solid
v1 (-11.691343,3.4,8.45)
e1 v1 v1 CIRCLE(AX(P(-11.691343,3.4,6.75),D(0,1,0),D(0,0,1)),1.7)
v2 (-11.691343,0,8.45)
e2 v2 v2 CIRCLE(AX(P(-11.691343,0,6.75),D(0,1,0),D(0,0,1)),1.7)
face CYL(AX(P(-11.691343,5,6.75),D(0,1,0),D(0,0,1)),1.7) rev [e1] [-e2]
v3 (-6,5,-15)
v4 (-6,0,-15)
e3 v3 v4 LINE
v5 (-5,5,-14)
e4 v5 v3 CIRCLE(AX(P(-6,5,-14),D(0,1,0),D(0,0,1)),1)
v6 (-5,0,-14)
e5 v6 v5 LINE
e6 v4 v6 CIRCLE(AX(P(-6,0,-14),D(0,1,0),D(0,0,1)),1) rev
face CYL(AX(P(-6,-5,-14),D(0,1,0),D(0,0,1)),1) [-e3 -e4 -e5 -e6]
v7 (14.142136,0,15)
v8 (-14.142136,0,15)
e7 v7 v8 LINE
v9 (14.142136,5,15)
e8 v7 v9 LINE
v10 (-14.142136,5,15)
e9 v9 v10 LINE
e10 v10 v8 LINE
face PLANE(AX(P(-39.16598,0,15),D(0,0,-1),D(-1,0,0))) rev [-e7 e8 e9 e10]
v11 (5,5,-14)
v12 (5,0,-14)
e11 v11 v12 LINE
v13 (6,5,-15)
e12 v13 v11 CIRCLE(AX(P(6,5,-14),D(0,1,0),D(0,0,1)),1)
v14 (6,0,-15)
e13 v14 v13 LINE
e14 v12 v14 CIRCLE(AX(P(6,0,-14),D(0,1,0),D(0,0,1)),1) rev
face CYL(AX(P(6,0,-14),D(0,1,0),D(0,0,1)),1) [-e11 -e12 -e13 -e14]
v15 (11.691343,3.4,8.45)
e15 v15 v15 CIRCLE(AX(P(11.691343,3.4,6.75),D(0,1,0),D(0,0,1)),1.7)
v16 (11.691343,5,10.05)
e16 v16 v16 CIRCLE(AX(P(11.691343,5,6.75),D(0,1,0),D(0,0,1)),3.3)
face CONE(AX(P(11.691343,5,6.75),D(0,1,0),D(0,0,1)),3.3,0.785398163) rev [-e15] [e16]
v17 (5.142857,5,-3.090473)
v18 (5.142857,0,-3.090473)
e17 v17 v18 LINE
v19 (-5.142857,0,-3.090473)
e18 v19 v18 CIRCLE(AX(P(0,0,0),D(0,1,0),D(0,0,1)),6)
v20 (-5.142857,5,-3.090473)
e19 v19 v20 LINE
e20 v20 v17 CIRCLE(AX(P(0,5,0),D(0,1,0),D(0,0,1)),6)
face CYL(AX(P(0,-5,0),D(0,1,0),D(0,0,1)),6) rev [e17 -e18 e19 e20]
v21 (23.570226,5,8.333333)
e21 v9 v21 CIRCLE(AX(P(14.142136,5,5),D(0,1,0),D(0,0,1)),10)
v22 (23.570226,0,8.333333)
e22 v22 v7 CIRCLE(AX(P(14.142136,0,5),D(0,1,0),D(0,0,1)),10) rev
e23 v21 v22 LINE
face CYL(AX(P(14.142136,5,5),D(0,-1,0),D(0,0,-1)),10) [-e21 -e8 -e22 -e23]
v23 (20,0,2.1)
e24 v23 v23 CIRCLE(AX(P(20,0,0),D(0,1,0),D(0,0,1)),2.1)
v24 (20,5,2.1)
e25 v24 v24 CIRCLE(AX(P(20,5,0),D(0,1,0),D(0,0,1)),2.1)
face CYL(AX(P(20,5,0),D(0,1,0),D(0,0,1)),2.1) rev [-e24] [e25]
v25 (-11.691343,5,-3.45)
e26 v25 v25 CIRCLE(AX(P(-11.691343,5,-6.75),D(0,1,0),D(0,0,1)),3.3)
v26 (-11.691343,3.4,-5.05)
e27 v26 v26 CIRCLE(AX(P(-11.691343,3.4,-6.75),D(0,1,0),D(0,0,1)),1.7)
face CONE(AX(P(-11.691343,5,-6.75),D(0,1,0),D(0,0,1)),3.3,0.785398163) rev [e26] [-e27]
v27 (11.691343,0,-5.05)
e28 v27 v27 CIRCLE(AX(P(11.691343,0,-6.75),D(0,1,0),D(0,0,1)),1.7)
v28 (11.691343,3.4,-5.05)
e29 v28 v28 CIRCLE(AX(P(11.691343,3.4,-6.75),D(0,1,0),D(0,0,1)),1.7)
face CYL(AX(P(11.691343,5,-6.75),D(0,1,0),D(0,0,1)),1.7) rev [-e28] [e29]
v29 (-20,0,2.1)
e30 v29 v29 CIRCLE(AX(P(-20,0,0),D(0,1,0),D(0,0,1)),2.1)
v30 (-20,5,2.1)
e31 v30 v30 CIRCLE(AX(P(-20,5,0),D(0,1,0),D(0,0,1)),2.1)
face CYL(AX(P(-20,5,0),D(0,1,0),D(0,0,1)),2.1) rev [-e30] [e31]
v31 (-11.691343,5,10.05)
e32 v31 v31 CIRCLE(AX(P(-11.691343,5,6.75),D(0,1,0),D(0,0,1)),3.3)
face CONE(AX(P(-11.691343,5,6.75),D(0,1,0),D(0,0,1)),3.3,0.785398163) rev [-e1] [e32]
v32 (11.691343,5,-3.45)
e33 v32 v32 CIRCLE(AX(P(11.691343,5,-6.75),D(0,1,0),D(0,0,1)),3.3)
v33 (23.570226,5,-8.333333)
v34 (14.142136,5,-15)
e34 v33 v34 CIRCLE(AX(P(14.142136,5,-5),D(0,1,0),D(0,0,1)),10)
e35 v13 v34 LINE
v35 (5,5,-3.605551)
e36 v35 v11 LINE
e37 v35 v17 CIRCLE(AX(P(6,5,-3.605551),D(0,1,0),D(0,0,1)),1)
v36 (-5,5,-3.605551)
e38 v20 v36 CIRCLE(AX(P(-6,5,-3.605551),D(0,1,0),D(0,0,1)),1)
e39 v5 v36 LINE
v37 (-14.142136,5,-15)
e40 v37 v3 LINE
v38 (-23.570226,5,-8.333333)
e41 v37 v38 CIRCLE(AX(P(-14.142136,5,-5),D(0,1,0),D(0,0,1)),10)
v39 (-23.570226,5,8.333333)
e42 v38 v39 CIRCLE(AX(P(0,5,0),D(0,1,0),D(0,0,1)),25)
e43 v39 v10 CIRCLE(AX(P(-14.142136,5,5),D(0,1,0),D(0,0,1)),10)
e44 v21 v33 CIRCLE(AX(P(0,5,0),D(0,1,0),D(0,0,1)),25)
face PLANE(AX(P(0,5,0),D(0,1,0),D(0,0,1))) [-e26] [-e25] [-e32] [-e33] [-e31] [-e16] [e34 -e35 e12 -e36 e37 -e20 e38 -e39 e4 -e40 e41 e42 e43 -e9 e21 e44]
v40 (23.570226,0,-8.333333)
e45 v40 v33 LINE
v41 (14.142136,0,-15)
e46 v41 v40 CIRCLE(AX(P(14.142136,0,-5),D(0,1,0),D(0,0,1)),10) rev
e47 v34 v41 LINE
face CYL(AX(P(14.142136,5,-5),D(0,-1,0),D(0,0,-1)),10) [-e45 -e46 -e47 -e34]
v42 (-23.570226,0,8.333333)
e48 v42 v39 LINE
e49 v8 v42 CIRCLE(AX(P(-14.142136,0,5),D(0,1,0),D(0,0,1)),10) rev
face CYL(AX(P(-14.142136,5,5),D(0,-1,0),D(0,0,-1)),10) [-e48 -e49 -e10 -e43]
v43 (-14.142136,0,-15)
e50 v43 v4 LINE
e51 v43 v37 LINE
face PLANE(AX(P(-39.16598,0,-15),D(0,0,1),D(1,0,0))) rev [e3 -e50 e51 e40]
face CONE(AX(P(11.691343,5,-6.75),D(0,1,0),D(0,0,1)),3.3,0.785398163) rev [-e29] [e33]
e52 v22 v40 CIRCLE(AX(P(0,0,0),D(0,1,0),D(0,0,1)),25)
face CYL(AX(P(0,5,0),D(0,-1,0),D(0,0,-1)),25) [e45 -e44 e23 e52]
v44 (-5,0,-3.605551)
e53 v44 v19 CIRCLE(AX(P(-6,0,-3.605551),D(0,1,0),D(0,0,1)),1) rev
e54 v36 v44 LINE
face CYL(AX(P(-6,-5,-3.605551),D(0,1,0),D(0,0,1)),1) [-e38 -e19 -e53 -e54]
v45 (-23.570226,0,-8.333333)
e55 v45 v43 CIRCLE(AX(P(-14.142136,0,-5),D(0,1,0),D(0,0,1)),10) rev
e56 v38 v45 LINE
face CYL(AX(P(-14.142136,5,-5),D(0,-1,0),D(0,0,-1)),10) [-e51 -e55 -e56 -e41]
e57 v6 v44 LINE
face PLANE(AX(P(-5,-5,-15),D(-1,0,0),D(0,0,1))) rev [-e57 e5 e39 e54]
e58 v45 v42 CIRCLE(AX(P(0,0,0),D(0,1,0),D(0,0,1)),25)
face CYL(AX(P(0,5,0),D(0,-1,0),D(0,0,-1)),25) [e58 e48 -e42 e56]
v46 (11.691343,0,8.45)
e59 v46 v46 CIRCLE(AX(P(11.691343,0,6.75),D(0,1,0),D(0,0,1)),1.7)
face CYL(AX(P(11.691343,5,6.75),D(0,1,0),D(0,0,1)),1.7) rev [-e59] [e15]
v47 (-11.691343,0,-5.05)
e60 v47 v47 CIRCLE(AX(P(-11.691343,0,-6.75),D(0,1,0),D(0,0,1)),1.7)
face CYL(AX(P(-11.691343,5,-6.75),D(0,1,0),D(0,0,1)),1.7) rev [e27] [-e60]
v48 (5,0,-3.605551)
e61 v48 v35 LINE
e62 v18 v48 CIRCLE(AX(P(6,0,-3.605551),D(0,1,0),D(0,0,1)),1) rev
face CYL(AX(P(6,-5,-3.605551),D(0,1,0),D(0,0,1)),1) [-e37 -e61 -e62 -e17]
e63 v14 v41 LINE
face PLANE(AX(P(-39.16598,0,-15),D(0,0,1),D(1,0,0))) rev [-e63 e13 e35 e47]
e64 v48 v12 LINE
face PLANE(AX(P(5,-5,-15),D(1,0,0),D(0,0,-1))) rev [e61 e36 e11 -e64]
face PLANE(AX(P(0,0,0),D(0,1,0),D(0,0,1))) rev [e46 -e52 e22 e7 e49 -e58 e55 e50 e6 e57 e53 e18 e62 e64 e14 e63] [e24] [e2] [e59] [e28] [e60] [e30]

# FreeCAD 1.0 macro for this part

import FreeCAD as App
import Part
import Sketcher
Q = App.Units.Quantity


def edges_at(feature, points):
    """Names of the edges that pass closest to the given points."""
    edges = feature.Shape.Edges
    near = lambda p: min(range(len(edges)), key=lambda i: edges[i].distToShape(Part.Vertex(*p))[0])
    return sorted({f"Edge{near(p) + 1}" for p in points})

doc = App.newDocument("Part")
body = doc.addObject("PartDesign::Body", "Body")

# Sketch on XZ plane
sketch1 = body.newObject("Sketcher::SketchObject", "Sketch")
sketch1.AttachmentSupport = (doc.getObject("XZ_Plane"), [""])
sketch1.MapMode = "FlatFace"
sketch1.addGeometry(Part.Circle(App.Vector(0, 0, 0), App.Vector(0, 0, 1), 25), False)
sketch1.addConstraint([
    Sketcher.Constraint("Coincident", 0, 3, -1, 1),
    Sketcher.Constraint("Diameter", 0, Q("50 mm")),
])
pad1 = body.newObject("PartDesign::Pad", "Pad")
pad1.Profile = sketch1
pad1.Length = 5
pad1.Reversed = True

# Sketch on XZ plane
sketch2 = body.newObject("Sketcher::SketchObject", "Sketch001")
sketch2.AttachmentSupport = (doc.getObject("XZ_Plane"), [""])
sketch2.MapMode = "FlatFace"
sketch2.AttachmentOffset = App.Placement(App.Vector(0, 0, -5), App.Rotation())
sketch2.addGeometry([
    Part.Circle(App.Vector(11.7, -6.8, 0), App.Vector(0, 0, 1), 1),
    Part.Circle(App.Vector(11.7, 6.8, 0), App.Vector(0, 0, 1), 1),
    Part.Circle(App.Vector(-11.7, 6.8, 0), App.Vector(0, 0, 1), 1),
    Part.Circle(App.Vector(-11.7, -6.8, 0), App.Vector(0, 0, 1), 1),
], False)
sketch2.addConstraint([
    Sketcher.Constraint("Equal", 0, 1),
    Sketcher.Constraint("Equal", 1, 2),
    Sketcher.Constraint("Equal", 2, 3),
    Sketcher.Constraint("Symmetric", 0, 3, 2, 3, -1, 1),
    Sketcher.Constraint("Symmetric", 1, 3, 3, 3, -1, 1),
    Sketcher.Constraint("Symmetric", 1, 3, 2, 3, -2),
    Sketcher.Constraint("Diameter", 0, Q("2 mm")),
    Sketcher.Constraint("DistanceY", 0, 3, 1, 3, Q("13.5 mm")),
    Sketcher.Constraint("DistanceX", -1, 1, 0, 3, Q("11.691343 mm")),
])
pocket1 = body.newObject("PartDesign::Pocket", "Pocket")
pocket1.Profile = sketch2
pocket1.Length = 4
pocket1.Reversed = True

# Sketch on XZ plane
sketch3 = body.newObject("Sketcher::SketchObject", "Sketch002")
sketch3.AttachmentSupport = (doc.getObject("XZ_Plane"), [""])
sketch3.MapMode = "FlatFace"
sketch3.AttachmentOffset = App.Placement(App.Vector(0, 0, -5), App.Rotation())
sketch3.addGeometry([
    Part.Circle(App.Vector(11.7, -6.8, 0), App.Vector(0, 0, 1), 1.7),
    Part.Circle(App.Vector(11.7, 6.8, 0), App.Vector(0, 0, 1), 1.7),
    Part.Circle(App.Vector(-11.7, 6.8, 0), App.Vector(0, 0, 1), 1.7),
    Part.Circle(App.Vector(-11.7, -6.8, 0), App.Vector(0, 0, 1), 1.7),
], False)
sketch3.addConstraint([
    Sketcher.Constraint("Equal", 0, 1),
    Sketcher.Constraint("Equal", 1, 2),
    Sketcher.Constraint("Equal", 2, 3),
    Sketcher.Constraint("Symmetric", 0, 3, 2, 3, -1, 1),
    Sketcher.Constraint("Symmetric", 1, 3, 3, 3, -1, 1),
    Sketcher.Constraint("Symmetric", 1, 3, 2, 3, -2),
    Sketcher.Constraint("Diameter", 0, Q("3.4 mm")),
    Sketcher.Constraint("DistanceY", 0, 3, 1, 3, Q("13.5 mm")),
    Sketcher.Constraint("DistanceX", -1, 1, 0, 3, Q("11.691343 mm")),
])
doc.recompute()
hole = body.newObject("PartDesign::Hole", "Hole")
hole.Profile = sketch3
hole.ThreadType = "None"
hole.Diameter = 3.4
hole.DepthType = "Dimension"
hole.Depth = 7.5
hole.DrillPoint = "Angled"
hole.DrillPointAngle = 118
hole.HoleCutType = "Countersink"
hole.HoleCutDiameter = 6.6
hole.HoleCutCountersinkAngle = 90
hole.Reversed = True

# Sketch on XZ plane
sketch4 = body.newObject("Sketcher::SketchObject", "Sketch003")
sketch4.AttachmentSupport = (doc.getObject("XZ_Plane"), [""])
sketch4.MapMode = "FlatFace"
sketch4.AttachmentOffset = App.Placement(App.Vector(0, 0, -5), App.Rotation())
sketch4.addGeometry([
    Part.Circle(App.Vector(-20, 0, 0), App.Vector(0, 0, 1), 2),
    Part.Circle(App.Vector(20, 0, 0), App.Vector(0, 0, 1), 2),
], False)
sketch4.addConstraint([
    Sketcher.Constraint("Equal", 0, 1),
    Sketcher.Constraint("Symmetric", 0, 3, 1, 3, -1, 1),
    Sketcher.Constraint("PointOnObject", 0, 3, -1),
    Sketcher.Constraint("Diameter", 0, Q("4 mm")),
    Sketcher.Constraint("DistanceX", 0, 3, -1, 1, Q("20 mm")),
])
pocket2 = body.newObject("PartDesign::Pocket", "Pocket001")
pocket2.Profile = sketch4
pocket2.Length = 4
pocket2.Reversed = True

# Sketch on XZ plane
sketch5 = body.newObject("Sketcher::SketchObject", "Sketch004")
sketch5.AttachmentSupport = (doc.getObject("XZ_Plane"), [""])
sketch5.MapMode = "FlatFace"
sketch5.AttachmentOffset = App.Placement(App.Vector(0, 0, -5), App.Rotation())
sketch5.addGeometry([
    Part.Circle(App.Vector(-20, 0, 0), App.Vector(0, 0, 1), 2.1),
    Part.Circle(App.Vector(20, 0, 0), App.Vector(0, 0, 1), 2.1),
], False)
sketch5.addConstraint([
    Sketcher.Constraint("Equal", 0, 1),
    Sketcher.Constraint("Symmetric", 0, 3, 1, 3, -1, 1),
    Sketcher.Constraint("PointOnObject", 0, 3, -1),
    Sketcher.Constraint("Diameter", 0, Q("4.2 mm")),
    Sketcher.Constraint("DistanceX", 0, 3, -1, 1, Q("20 mm")),
])
doc.recompute()
hole2 = body.newObject("PartDesign::Hole", "Hole001")
hole2.Profile = sketch5
hole2.ThreadType = "None"
hole2.Diameter = 4.2
hole2.DepthType = "Dimension"
hole2.Depth = 12.4
hole2.DrillPoint = "Angled"
hole2.DrillPointAngle = 118
hole2.Reversed = True

# Sketch on XZ plane
sketch6 = body.newObject("Sketcher::SketchObject", "Sketch005")
sketch6.AttachmentSupport = (doc.getObject("XZ_Plane"), [""])
sketch6.MapMode = "FlatFace"
sketch6.AttachmentOffset = App.Placement(App.Vector(0, 0, -5), App.Rotation())
sketch6.addGeometry([
    Part.LineSegment(App.Vector(-39, -25, 0), App.Vector(-39, -15, 0)),  # 0
    Part.LineSegment(App.Vector(-39, -15, 0), App.Vector(39, -15, 0)),  # 1
    Part.LineSegment(App.Vector(39, -15, 0), App.Vector(39, -25, 0)),  # 2
    Part.LineSegment(App.Vector(39, -25, 0), App.Vector(-39, -25, 0)),  # 3
    Part.LineSegment(App.Vector(-39, 15, 0), App.Vector(-39, 25, 0)),  # 4
    Part.LineSegment(App.Vector(-39, 25, 0), App.Vector(39, 25, 0)),  # 5
    Part.LineSegment(App.Vector(39, 25, 0), App.Vector(39, 15, 0)),  # 6
    Part.LineSegment(App.Vector(39, 15, 0), App.Vector(-39, 15, 0)),  # 7
], False)
sketch6.addConstraint([
    Sketcher.Constraint("Coincident", 0, 2, 1, 1),
    Sketcher.Constraint("Coincident", 1, 2, 2, 1),
    Sketcher.Constraint("Coincident", 2, 2, 3, 1),
    Sketcher.Constraint("Coincident", 3, 2, 0, 1),
    Sketcher.Constraint("Coincident", 4, 2, 5, 1),
    Sketcher.Constraint("Coincident", 5, 2, 6, 1),
    Sketcher.Constraint("Coincident", 6, 2, 7, 1),
    Sketcher.Constraint("Coincident", 7, 2, 4, 1),
    Sketcher.Constraint("Vertical", 0),
    Sketcher.Constraint("Horizontal", 1),
    Sketcher.Constraint("Vertical", 2),
    Sketcher.Constraint("Horizontal", 3),
    Sketcher.Constraint("Vertical", 4),
    Sketcher.Constraint("Horizontal", 5),
    Sketcher.Constraint("Vertical", 6),
    Sketcher.Constraint("Horizontal", 7),
    Sketcher.Constraint("Symmetric", 2, 2, 4, 2, -1, 1),
    Sketcher.Constraint("Symmetric", 0, 2, 6, 2, -1, 1),
    Sketcher.Constraint("Vertical", 3, 2, 4, 2),
    Sketcher.Constraint("DistanceY", 0, 1, 0, 2, Q("10 mm")),
    Sketcher.Constraint("DistanceY", 0, 2, -1, 1, Q("15 mm")),
    Sketcher.Constraint("DistanceX", 1, 1, 1, 2, Q("78.33196 mm")),
])
pocket3 = body.newObject("PartDesign::Pocket", "Pocket002")
pocket3.Profile = sketch6
pocket3.Type = "ThroughAll"
pocket3.Reversed = True
doc.recompute()

fillet = body.newObject("PartDesign::Fillet", "Fillet")
fillet.Base = (pocket3, edges_at(pocket3, [
    (20, 2.5, 15),
    (-20, 2.5, 15),
    (-20, 2.5, -15),
    (20, 2.5, -15),
]))
fillet.Radius = 10

# Sketch on XZ plane
sketch7 = body.newObject("Sketcher::SketchObject", "Sketch006")
sketch7.AttachmentSupport = (doc.getObject("XZ_Plane"), [""])
sketch7.MapMode = "FlatFace"
sketch7.AttachmentOffset = App.Placement(App.Vector(0, 0, -5), App.Rotation())
sketch7.addGeometry(Part.Circle(App.Vector(0, 0, 0), App.Vector(0, 0, 1), 6), False)
sketch7.addConstraint([
    Sketcher.Constraint("Coincident", 0, 3, -1, 1),
    Sketcher.Constraint("Diameter", 0, Q("12 mm")),
])
pocket4 = body.newObject("PartDesign::Pocket", "Pocket003")
pocket4.Profile = sketch7
pocket4.Length = 10
pocket4.Reversed = True

# Sketch on XZ plane
sketch8 = body.newObject("Sketcher::SketchObject", "Sketch007")
sketch8.AttachmentSupport = (doc.getObject("XZ_Plane"), [""])
sketch8.MapMode = "FlatFace"
sketch8.AttachmentOffset = App.Placement(App.Vector(0, 0, -5), App.Rotation())
sketch8.addGeometry([
    Part.LineSegment(App.Vector(-5, -15, 0), App.Vector(-5, -3, 0)),
    Part.LineSegment(App.Vector(-5, -3, 0), App.Vector(5, -3, 0)),
    Part.LineSegment(App.Vector(5, -3, 0), App.Vector(5, -15, 0)),
    Part.LineSegment(App.Vector(5, -15, 0), App.Vector(-5, -15, 0)),
], False)
sketch8.addConstraint([
    Sketcher.Constraint("Coincident", 0, 2, 1, 1),
    Sketcher.Constraint("Coincident", 1, 2, 2, 1),
    Sketcher.Constraint("Coincident", 2, 2, 3, 1),
    Sketcher.Constraint("Coincident", 3, 2, 0, 1),
    Sketcher.Constraint("Vertical", 0),
    Sketcher.Constraint("Horizontal", 1),
    Sketcher.Constraint("Vertical", 2),
    Sketcher.Constraint("Horizontal", 3),
    Sketcher.Constraint("DistanceX", 1, 1, 1, 2, Q("10 mm")),
    Sketcher.Constraint("DistanceX", 0, 2, -1, 1, Q("5 mm")),
    Sketcher.Constraint("DistanceY", 2, 2, -1, 1, Q("15 mm")),
    Sketcher.Constraint("DistanceY", 0, 1, 0, 2, Q("11.683375 mm")),
])
pocket5 = body.newObject("PartDesign::Pocket", "Pocket004")
pocket5.Profile = sketch8
pocket5.Length = 10
pocket5.Reversed = True
doc.recompute()

fillet2 = body.newObject("PartDesign::Fillet", "Fillet001")
fillet2.Base = (pocket5, edges_at(pocket5, [
    (-5, 2.5, -3.317),
    (5, 2.5, -3.317),
    (-5, 2.5, -15),
    (5, 2.5, -15),
]))
fillet2.Radius = 1

doc.recompute()
